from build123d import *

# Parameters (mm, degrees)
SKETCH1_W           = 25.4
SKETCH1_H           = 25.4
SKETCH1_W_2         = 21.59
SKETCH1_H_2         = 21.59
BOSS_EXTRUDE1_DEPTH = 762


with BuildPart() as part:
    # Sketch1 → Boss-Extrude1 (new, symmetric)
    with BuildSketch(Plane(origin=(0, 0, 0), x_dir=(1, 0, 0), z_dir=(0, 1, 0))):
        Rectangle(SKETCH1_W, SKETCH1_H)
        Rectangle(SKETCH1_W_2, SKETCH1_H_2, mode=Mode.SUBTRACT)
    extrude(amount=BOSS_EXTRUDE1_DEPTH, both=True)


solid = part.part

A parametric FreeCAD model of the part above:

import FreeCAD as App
import Part
import Sketcher

V = App.Vector
Q = App.Units.Quantity

doc = App.newDocument("Part")
params = doc.addObject("Spreadsheet::Sheet", "Params")
for row, (alias, value) in enumerate([
    ("sketch1_width", "1 in"),
    ("sketch1_width2", "0.85 in"),
    ("pad1_length", "60 in"),
], start=1):
    params.set(f"A{row}", alias)
    params.set(f"B{row}", "=" + value)
    params.setAlias(f"B{row}", alias)

body = doc.addObject("PartDesign::Body", "Body")

sketch1 = doc.addObject("Sketcher::SketchObject", "Sketch")
body.addObject(sketch1)
sketch1.AttachmentSupport = (doc.XZ_Plane, [""])
sketch1.MapMode = "FlatFace"
sketch1.addGeometry(Part.LineSegment(V(-13, -13, 0), V(-13, 13, 0)), False)
sketch1.addGeometry(Part.LineSegment(V(-13, 13, 0), V(13, 13, 0)), False)
sketch1.addGeometry(Part.LineSegment(V(13, 13, 0), V(13, -13, 0)), False)
sketch1.addGeometry(Part.LineSegment(V(13, -13, 0), V(-13, -13, 0)), False)
sketch1.addGeometry(Part.LineSegment(V(11, 11, 0), V(-11, 11, 0)), False)
sketch1.addGeometry(Part.LineSegment(V(-11, 11, 0), V(-11, -11, 0)), False)
sketch1.addGeometry(Part.LineSegment(V(-11, -11, 0), V(11, -11, 0)), False)
sketch1.addGeometry(Part.LineSegment(V(11, -11, 0), V(11, 11, 0)), False)
sketch1.addConstraint(Sketcher.Constraint("Coincident", 0, 2, 1, 1))
sketch1.addConstraint(Sketcher.Constraint("Coincident", 1, 2, 2, 1))
sketch1.addConstraint(Sketcher.Constraint("Coincident", 2, 2, 3, 1))
sketch1.addConstraint(Sketcher.Constraint("Coincident", 3, 2, 0, 1))
sketch1.addConstraint(Sketcher.Constraint("Coincident", 4, 2, 5, 1))
sketch1.addConstraint(Sketcher.Constraint("Coincident", 5, 2, 6, 1))
sketch1.addConstraint(Sketcher.Constraint("Coincident", 6, 2, 7, 1))
sketch1.addConstraint(Sketcher.Constraint("Coincident", 7, 2, 4, 1))
sketch1.addConstraint(Sketcher.Constraint("Vertical", 0))
sketch1.addConstraint(Sketcher.Constraint("Horizontal", 1))
sketch1.addConstraint(Sketcher.Constraint("Vertical", 2))
sketch1.addConstraint(Sketcher.Constraint("Horizontal", 3))
sketch1.addConstraint(Sketcher.Constraint("Horizontal", 4))
sketch1.addConstraint(Sketcher.Constraint("Vertical", 5))
sketch1.addConstraint(Sketcher.Constraint("Horizontal", 6))
sketch1.addConstraint(Sketcher.Constraint("Vertical", 7))
sketch1.addConstraint(Sketcher.Constraint("Symmetric", 0, 2, 2, 2, -1, 1))
sketch1.addConstraint(Sketcher.Constraint("Symmetric", 4, 2, 6, 2, -1, 1))
sketch1.addConstraint(Sketcher.Constraint("Equal", 3, 0))
sketch1.addConstraint(Sketcher.Constraint("Equal", 6, 5))
sketch1.addConstraint(Sketcher.Constraint("DistanceX", 1, 1, 1, 2, Q("1 in")))
sketch1.addConstraint(Sketcher.Constraint("DistanceX", 4, 2, 4, 1, Q("0.85 in")))
sketch1.setExpression("Constraints[20]", "Params.sketch1_width")
sketch1.setExpression("Constraints[21]", "Params.sketch1_width2")
pad1 = doc.addObject("PartDesign::Pad", "Pad")
body.addObject(pad1)
pad1.Profile = sketch1
pad1.setExpression("Length", "Params.pad1_length")
pad1.Midplane = True

doc.recompute()
